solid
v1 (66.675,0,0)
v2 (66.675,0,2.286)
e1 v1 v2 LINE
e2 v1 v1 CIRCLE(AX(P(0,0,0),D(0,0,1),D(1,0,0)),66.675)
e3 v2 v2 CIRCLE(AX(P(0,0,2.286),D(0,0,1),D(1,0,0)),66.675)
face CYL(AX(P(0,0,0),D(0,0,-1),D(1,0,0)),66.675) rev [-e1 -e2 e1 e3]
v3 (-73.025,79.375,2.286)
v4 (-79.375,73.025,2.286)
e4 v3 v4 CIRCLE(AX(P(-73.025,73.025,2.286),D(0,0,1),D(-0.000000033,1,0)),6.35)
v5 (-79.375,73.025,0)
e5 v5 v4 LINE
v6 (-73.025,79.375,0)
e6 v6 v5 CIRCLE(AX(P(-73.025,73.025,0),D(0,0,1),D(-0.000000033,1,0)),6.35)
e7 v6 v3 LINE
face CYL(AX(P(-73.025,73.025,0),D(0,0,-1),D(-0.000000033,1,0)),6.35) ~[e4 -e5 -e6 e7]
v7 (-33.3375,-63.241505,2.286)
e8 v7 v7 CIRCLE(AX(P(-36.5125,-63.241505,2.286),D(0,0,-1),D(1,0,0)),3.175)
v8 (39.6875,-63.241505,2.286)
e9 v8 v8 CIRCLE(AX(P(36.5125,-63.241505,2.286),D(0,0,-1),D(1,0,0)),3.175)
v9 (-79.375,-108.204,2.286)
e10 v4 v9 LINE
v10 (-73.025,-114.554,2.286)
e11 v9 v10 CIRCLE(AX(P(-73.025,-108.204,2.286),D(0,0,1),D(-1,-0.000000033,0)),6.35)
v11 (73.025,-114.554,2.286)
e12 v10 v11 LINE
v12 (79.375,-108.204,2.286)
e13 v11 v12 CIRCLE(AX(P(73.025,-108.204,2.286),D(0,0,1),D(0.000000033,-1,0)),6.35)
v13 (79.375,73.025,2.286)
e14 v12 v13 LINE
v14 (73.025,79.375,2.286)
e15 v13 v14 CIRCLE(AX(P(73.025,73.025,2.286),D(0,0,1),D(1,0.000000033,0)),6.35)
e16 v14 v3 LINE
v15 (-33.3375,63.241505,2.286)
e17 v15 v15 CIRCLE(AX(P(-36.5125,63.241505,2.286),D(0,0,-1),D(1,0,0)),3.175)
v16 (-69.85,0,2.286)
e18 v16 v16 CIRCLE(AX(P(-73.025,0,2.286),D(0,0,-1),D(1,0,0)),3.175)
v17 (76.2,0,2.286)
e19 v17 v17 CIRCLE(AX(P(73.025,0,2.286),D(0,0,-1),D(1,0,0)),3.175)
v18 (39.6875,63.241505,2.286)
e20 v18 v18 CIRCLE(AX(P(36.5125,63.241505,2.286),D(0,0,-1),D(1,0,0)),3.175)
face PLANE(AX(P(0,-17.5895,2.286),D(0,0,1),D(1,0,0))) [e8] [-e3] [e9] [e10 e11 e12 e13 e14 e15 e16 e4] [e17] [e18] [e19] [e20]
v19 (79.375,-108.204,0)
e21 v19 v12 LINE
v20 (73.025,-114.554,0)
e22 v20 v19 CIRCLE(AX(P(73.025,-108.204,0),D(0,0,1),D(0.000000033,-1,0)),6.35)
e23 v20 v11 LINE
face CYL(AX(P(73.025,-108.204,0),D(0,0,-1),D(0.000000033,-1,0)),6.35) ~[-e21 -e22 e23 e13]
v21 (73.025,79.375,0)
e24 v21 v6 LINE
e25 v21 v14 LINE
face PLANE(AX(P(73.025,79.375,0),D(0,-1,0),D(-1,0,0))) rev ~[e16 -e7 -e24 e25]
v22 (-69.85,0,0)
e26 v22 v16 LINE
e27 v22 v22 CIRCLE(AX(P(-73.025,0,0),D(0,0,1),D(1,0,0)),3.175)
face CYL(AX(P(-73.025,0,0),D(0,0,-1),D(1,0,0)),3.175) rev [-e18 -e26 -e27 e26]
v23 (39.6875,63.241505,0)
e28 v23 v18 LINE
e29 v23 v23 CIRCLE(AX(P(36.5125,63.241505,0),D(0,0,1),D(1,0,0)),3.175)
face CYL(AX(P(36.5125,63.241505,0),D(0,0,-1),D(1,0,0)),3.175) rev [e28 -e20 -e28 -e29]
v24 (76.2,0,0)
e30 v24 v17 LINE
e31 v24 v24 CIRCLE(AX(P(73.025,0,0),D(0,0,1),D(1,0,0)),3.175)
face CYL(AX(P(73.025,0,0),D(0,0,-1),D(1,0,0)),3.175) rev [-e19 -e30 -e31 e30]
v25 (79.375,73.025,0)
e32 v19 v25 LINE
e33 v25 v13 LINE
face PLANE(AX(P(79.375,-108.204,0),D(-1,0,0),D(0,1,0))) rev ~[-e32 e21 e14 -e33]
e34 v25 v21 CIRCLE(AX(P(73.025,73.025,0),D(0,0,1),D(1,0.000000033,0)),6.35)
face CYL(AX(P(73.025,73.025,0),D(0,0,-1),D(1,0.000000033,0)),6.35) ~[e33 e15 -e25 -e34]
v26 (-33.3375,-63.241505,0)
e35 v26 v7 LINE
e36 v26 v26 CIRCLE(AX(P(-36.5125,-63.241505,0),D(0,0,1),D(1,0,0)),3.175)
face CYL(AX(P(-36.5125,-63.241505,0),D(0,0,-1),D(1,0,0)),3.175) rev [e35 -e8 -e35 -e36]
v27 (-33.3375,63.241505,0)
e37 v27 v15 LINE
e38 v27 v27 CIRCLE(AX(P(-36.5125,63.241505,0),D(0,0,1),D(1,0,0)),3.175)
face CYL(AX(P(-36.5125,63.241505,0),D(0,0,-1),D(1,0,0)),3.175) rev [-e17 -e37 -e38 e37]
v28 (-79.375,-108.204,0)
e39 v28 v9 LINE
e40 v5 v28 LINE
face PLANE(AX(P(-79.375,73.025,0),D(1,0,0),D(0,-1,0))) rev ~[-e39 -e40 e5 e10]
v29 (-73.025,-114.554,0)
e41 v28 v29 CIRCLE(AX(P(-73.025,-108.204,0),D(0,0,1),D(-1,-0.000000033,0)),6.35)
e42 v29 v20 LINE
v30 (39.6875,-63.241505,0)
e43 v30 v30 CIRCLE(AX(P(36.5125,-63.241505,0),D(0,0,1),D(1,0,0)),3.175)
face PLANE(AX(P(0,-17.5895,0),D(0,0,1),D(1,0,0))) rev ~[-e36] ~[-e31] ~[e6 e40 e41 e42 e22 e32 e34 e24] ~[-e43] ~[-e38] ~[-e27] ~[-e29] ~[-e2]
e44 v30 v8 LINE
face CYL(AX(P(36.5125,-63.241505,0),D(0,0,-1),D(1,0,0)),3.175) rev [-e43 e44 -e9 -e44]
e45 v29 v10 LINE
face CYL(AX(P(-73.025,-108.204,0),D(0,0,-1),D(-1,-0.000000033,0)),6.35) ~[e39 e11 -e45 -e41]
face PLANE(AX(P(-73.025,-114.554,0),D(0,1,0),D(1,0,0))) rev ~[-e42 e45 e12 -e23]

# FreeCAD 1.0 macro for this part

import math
import FreeCAD as App
import Part
import Sketcher

V = App.Vector
Q = App.Units.Quantity

doc = App.newDocument("Part")
params = doc.addObject("Spreadsheet::Sheet", "Params")
for row, (alias, value) in enumerate([
    ("sketch1_diameter", "5.25 in"),
    ("sketch1_radius", "0.25 in"),
    ("sketch1_height", "7.135 in"),
    ("pad1_length", "0.09 in"),
    ("sketch2_diameter", "0.25 in"),
    ("pocket1_length", "1 in"),
], start=1):
    params.set(f"A{row}", alias)
    params.set(f"B{row}", "=" + value)
    params.setAlias(f"B{row}", alias)

body = doc.addObject("PartDesign::Body", "Body")

sketch1 = doc.addObject("Sketcher::SketchObject", "Sketch")
body.addObject(sketch1)
sketch1.AttachmentSupport = (doc.XY_Plane, [""])
sketch1.MapMode = "FlatFace"
sketch1.addGeometry([
    Part.LineSegment(V(73, 79, 0), V(-73, 79, 0)),
    Part.ArcOfCircle(Part.Circle(V(-73, 73, 0), V(0, 0, 1), 6), math.radians(90), math.radians(180)),
    Part.LineSegment(V(-79, 73, 0), V(-79, -108, 0)),
    Part.ArcOfCircle(Part.Circle(V(-73, -108, 0), V(0, 0, 1), 6), math.radians(-180), math.radians(-90)),
    Part.LineSegment(V(-73, -115, 0), V(73, -115, 0)),
    Part.ArcOfCircle(Part.Circle(V(73, -108, 0), V(0, 0, 1), 6), math.radians(-90), math.radians(0)),
    Part.LineSegment(V(79, -108, 0), V(79, 73, 0)),
    Part.ArcOfCircle(Part.Circle(V(73, 73, 0), V(0, 0, 1), 6), math.radians(0), math.radians(90)),
    Part.Circle(V(0, 0, 0), V(0, 0, 1), 67),
], False)
sketch1.addConstraint([
    Sketcher.Constraint("Tangent", 0, 2, 1, 1),
    Sketcher.Constraint("Tangent", 1, 2, 2, 1),
    Sketcher.Constraint("Tangent", 2, 2, 3, 1),
    Sketcher.Constraint("Tangent", 3, 2, 4, 1),
    Sketcher.Constraint("Tangent", 4, 2, 5, 1),
    Sketcher.Constraint("Tangent", 5, 2, 6, 1),
    Sketcher.Constraint("Tangent", 6, 2, 7, 1),
    Sketcher.Constraint("Tangent", 7, 2, 0, 1),
    Sketcher.Constraint("Horizontal", 0),
    Sketcher.Constraint("Vertical", 2),
    Sketcher.Constraint("Horizontal", 4),
    Sketcher.Constraint("Vertical", 6),
    Sketcher.Constraint("Coincident", 8, 3, -1, 1),
    Sketcher.Constraint("Equal", 1, 3),
    Sketcher.Constraint("Equal", 3, 5),
    Sketcher.Constraint("Equal", 5, 7),
    Sketcher.Constraint("Diameter", 8, Q("5.25 in")),
    Sketcher.Constraint("Radius", 1, Q("0.25 in")),
    Sketcher.Constraint("DistanceX", 1, 2, 7, 3, Q("6 in")),
    Sketcher.Constraint("DistanceY", 2, 2, 2, 1, Q("7.135 in")),
    Sketcher.Constraint("DistanceY", 3, 3, -1, 1, Q("4.26 in")),
    Sketcher.Constraint("DistanceX", 1, 3, -1, 1, Q("2.875 in")),
])
sketch1.setExpression("Constraints[16]", "Params.sketch1_diameter")
sketch1.setExpression("Constraints[17]", "Params.sketch1_radius")
sketch1.setExpression("Constraints[19]", "Params.sketch1_height")
pad1 = doc.addObject("PartDesign::Pad", "Pad")
body.addObject(pad1)
pad1.Profile = sketch1
pad1.setExpression("Length", "Params.pad1_length")

sketch2 = doc.addObject("Sketcher::SketchObject", "Sketch001")
body.addObject(sketch2)
sketch2.AttachmentSupport = (doc.XY_Plane, [""])
sketch2.MapMode = "FlatFace"
sketch2.addGeometry([
    Part.Circle(V(-73, 0, 0), V(0, 0, 1), 3.2),
    Part.Circle(V(-36.5, -63.2, 0), V(0, 0, 1), 3.2),
    Part.Circle(V(36.5, -63.2, 0), V(0, 0, 1), 3.2),
    Part.Circle(V(73, 0, 0), V(0, 0, 1), 3.2),
    Part.Circle(V(36.5, 63.2, 0), V(0, 0, 1), 3.2),
    Part.Circle(V(-36.5, 63.2, 0), V(0, 0, 1), 3.2),
], False)
sketch2.addConstraint([
    Sketcher.Constraint("Equal", 0, 1),
    Sketcher.Constraint("Equal", 1, 2),
    Sketcher.Constraint("Equal", 2, 3),
    Sketcher.Constraint("Equal", 3, 4),
    Sketcher.Constraint("Equal", 4, 5),
    Sketcher.Constraint("Symmetric", 0, 3, 3, 3, -1, 1),
    Sketcher.Constraint("Symmetric", 1, 3, 4, 3, -1, 1),
    Sketcher.Constraint("Symmetric", 2, 3, 5, 3, -1, 1),
    Sketcher.Constraint("Symmetric", 1, 3, 2, 3, -2),
    Sketcher.Constraint("PointOnObject", 0, 3, -1),
    Sketcher.Constraint("Diameter", 0, Q("0.25 in")),
    Sketcher.Constraint("DistanceX", 0, 3, 3, 3, Q("5.75 in")),
    Sketcher.Constraint("DistanceX", 1, 3, -1, 1, Q("1.4375 in")),
    Sketcher.Constraint("DistanceY", 2, 3, 4, 3, Q("126.48301 mm")),
])
sketch2.setExpression("Constraints[10]", "Params.sketch2_diameter")
pocket1 = doc.addObject("PartDesign::Pocket", "Pocket")
body.addObject(pocket1)
pocket1.Profile = sketch2
pocket1.setExpression("Length", "Params.pocket1_length")
pocket1.Reversed = True

doc.recompute()
